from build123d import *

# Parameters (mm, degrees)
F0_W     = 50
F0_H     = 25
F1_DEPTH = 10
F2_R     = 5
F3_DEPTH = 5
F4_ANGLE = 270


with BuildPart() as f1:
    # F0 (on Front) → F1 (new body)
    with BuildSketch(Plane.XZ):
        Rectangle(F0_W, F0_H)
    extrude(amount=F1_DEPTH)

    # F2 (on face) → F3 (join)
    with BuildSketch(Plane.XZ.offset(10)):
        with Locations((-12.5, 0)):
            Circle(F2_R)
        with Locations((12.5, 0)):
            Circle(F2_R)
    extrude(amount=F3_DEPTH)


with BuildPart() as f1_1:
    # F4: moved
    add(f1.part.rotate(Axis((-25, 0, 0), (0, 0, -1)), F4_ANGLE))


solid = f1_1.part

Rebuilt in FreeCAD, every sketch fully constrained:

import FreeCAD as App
import Part
import Sketcher


def add_polygon(sketch, points):
    """Adds a closed chain of lines whose ends are joined by coincident constraints."""
    first, n = sketch.GeometryCount, len(points)
    for a, b in zip(points, points[1:] + points[:1]):
        sketch.addGeometry(Part.LineSegment(App.Vector(*a, 0), App.Vector(*b, 0)), False)
    for i in range(n):
        sketch.addConstraint(Sketcher.Constraint("Coincident", first + i, 2, first + (i + 1) % n, 1))

doc = App.newDocument("Part")
body = doc.addObject("PartDesign::Body", "Body")

# Sketch on XZ plane
sketch1 = body.newObject("Sketcher::SketchObject", "Sketch")
sketch1.AttachmentSupport = (doc.getObject("XZ_Plane"), [""])
sketch1.MapMode = "FlatFace"
add_polygon(sketch1, [(-25, 12), (-25, -12), (25, -12), (25, 12)])  # lines 0-3
sketch1.addConstraint([
    Sketcher.Constraint("Vertical", 0),
    Sketcher.Constraint("Horizontal", 1),
    Sketcher.Constraint("Vertical", 2),
    Sketcher.Constraint("Horizontal", 3),
    Sketcher.Constraint("Symmetric", 0, 2, 2, 2, -1, 1),
    Sketcher.Constraint("DistanceX", 1, 1, 1, 2, 50.0),
    Sketcher.Constraint("DistanceY", 0, 2, 0, 1, 25.0),
])
pad1 = body.newObject("PartDesign::Pad", "Pad")
pad1.Profile = sketch1
pad1.Length = 10

# Sketch on XZ plane
sketch2 = body.newObject("Sketcher::SketchObject", "Sketch001")
sketch2.AttachmentSupport = (doc.getObject("XZ_Plane"), [""])
sketch2.MapMode = "FlatFace"
sketch2.AttachmentOffset = App.Placement(App.Vector(0, 0, 10), App.Rotation())
sketch2.addGeometry([
    Part.Circle(App.Vector(-12, 0, 0), App.Vector(0, 0, 1), 5),
    Part.Circle(App.Vector(12, 0, 0), App.Vector(0, 0, 1), 5),
], False)
sketch2.addConstraint([
    Sketcher.Constraint("Equal", 0, 1),
    Sketcher.Constraint("Symmetric", 0, 3, 1, 3, -1, 1),
    Sketcher.Constraint("PointOnObject", 0, 3, -1),
    Sketcher.Constraint("Diameter", 0, 10.0),
    Sketcher.Constraint("DistanceX", 0, 3, 1, 3, 25.0),
])
pad2 = body.newObject("PartDesign::Pad", "Pad001")
pad2.Profile = sketch2
pad2.Length = 5
body2 = doc.addObject("PartDesign::Body", "Body001")
doc.recompute()

body.Placement = App.Placement(App.Vector(-25, 25, 0), App.Rotation(App.Vector(0, 0, -1), 270))
boolean = body2.newObject("PartDesign::Boolean", "Boolean")
boolean.Type = "Fuse"
boolean.addObjects([body])

doc.recompute()
